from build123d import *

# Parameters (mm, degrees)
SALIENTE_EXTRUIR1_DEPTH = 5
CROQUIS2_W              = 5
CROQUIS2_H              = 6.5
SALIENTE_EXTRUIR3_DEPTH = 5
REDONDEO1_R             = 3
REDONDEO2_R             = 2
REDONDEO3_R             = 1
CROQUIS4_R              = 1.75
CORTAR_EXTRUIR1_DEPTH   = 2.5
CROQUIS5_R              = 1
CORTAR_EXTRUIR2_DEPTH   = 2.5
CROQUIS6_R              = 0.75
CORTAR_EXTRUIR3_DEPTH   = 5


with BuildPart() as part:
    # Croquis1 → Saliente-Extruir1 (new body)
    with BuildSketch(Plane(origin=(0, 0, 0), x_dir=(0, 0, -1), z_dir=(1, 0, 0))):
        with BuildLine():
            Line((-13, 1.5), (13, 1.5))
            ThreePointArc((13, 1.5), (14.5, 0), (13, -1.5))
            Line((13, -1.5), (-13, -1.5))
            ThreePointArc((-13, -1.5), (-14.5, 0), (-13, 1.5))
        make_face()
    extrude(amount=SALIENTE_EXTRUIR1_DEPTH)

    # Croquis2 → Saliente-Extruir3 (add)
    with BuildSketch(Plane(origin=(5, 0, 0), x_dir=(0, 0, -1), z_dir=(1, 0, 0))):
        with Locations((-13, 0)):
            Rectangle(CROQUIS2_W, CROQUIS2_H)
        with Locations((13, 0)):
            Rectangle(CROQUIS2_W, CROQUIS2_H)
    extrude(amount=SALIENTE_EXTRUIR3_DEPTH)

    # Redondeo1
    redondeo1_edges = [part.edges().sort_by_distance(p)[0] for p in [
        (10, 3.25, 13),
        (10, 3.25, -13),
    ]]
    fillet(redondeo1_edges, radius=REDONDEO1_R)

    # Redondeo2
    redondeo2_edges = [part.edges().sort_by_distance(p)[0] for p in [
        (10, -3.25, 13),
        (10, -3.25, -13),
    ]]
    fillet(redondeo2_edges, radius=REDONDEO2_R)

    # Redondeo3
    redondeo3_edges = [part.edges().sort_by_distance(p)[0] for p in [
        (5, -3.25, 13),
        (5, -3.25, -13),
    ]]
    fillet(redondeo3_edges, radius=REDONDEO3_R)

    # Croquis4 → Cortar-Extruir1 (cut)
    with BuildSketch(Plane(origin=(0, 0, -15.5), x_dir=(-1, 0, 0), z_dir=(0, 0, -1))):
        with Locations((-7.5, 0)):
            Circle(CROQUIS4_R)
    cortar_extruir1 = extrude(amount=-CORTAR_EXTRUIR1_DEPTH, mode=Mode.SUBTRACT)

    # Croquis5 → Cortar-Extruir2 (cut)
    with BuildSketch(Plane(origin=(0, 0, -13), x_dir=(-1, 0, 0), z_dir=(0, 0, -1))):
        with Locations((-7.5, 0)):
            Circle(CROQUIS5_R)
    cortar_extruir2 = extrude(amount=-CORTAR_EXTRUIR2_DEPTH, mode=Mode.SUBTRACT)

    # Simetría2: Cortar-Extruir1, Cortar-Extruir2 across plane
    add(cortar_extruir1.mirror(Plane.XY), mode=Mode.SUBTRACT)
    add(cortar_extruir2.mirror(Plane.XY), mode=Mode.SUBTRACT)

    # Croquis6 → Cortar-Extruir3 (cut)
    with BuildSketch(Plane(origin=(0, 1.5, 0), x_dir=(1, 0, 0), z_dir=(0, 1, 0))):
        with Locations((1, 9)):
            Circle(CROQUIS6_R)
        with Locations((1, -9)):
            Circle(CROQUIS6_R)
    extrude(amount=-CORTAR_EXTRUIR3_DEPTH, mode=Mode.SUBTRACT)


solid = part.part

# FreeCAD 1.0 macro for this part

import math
import FreeCAD as App
import Part
import Sketcher

V = App.Vector


def edges_at(feature, points):
    """Names of the edges that pass closest to the given points."""
    edges = feature.Shape.Edges
    near = lambda p: min(range(len(edges)), key=lambda i: edges[i].distToShape(Part.Vertex(*p))[0])
    return sorted({f"Edge{near(p) + 1}" for p in points})


def add_polygon(sketch, points):
    """Adds a closed chain of lines whose ends are joined by coincident constraints."""
    first, n = sketch.GeometryCount, len(points)
    for a, b in zip(points, points[1:] + points[:1]):
        sketch.addGeometry(Part.LineSegment(App.Vector(*a, 0), App.Vector(*b, 0)), False)
    for i in range(n):
        sketch.addConstraint(Sketcher.Constraint("Coincident", first + i, 2, first + (i + 1) % n, 1))

doc = App.newDocument("Part")
body = doc.addObject("PartDesign::Body", "Body")

# Sketch on YZ plane
sketch1 = body.newObject("Sketcher::SketchObject", "Sketch")
sketch1.AttachmentSupport = (doc.getObject("YZ_Plane"), [""])
sketch1.MapMode = "FlatFace"
sketch1.addGeometry([
    Part.LineSegment(V(1.5, -13, 0), V(1.5, 13, 0)),
    Part.ArcOfCircle(Part.Circle(V(0, 13, 0), V(0, 0, 1), 1.5), math.radians(0), math.radians(180)),
    Part.LineSegment(V(-1.5, 13, 0), V(-1.5, -13, 0)),
    Part.ArcOfCircle(Part.Circle(V(0, -13, 0), V(0, 0, 1), 1.5), math.radians(180), math.radians(360)),
], False)
sketch1.addConstraint([
    Sketcher.Constraint("Tangent", 0, 2, 1, 1),
    Sketcher.Constraint("Tangent", 1, 2, 2, 1),
    Sketcher.Constraint("Tangent", 2, 2, 3, 1),
    Sketcher.Constraint("Tangent", 3, 2, 0, 1),
    Sketcher.Constraint("Vertical", 0),
    Sketcher.Constraint("Vertical", 2),
    Sketcher.Constraint("Symmetric", 1, 3, 3, 3, -1, 1),
    Sketcher.Constraint("Radius", 1, 1.5),
    Sketcher.Constraint("DistanceY", 0, 1, 0, 2, 26.0),
])
pad1 = body.newObject("PartDesign::Pad", "Pad")
pad1.Profile = sketch1
pad1.Length = 5

# Sketch on YZ plane
sketch2 = body.newObject("Sketcher::SketchObject", "Sketch001")
sketch2.AttachmentSupport = (doc.getObject("YZ_Plane"), [""])
sketch2.MapMode = "FlatFace"
sketch2.AttachmentOffset = App.Placement(V(0, 0, 5), App.Rotation())
add_polygon(sketch2, [(3, 16), (-3, 16), (-3, 10), (3, 10)])  # lines 0-3
add_polygon(sketch2, [(3, -10), (-3, -10), (-3, -16), (3, -16)])  # lines 4-7
sketch2.addConstraint([
    Sketcher.Constraint("Horizontal", 0),
    Sketcher.Constraint("Vertical", 1),
    Sketcher.Constraint("Horizontal", 2),
    Sketcher.Constraint("Vertical", 3),
    Sketcher.Constraint("Horizontal", 4),
    Sketcher.Constraint("Vertical", 5),
    Sketcher.Constraint("Horizontal", 6),
    Sketcher.Constraint("Vertical", 7),
    Sketcher.Constraint("Symmetric", 2, 2, 4, 2, -1, 1),
    Sketcher.Constraint("Symmetric", 0, 2, 6, 2, -1, 1),
    Sketcher.Constraint("Vertical", 1, 2, 4, 2),
    Sketcher.Constraint("DistanceY", 1, 2, 1, 1, 5.0),
    Sketcher.Constraint("DistanceX", 0, 2, 0, 1, 6.5),
    Sketcher.Constraint("DistanceY", 4, 2, 1, 2, 21.0),
])
pad2 = body.newObject("PartDesign::Pad", "Pad001")
pad2.Profile = sketch2
pad2.Length = 5
doc.recompute()

fillet = body.newObject("PartDesign::Fillet", "Fillet")
fillet.Base = (pad2, edges_at(pad2, [(10, 3.25, 13), (10, 3.25, -13)]))
fillet.Radius = 3
doc.recompute()

fillet2 = body.newObject("PartDesign::Fillet", "Fillet001")
fillet2.Base = (fillet, edges_at(fillet, [(10, -3.25, 13), (10, -3.25, -13)]))
fillet2.Radius = 2
doc.recompute()

fillet3 = body.newObject("PartDesign::Fillet", "Fillet002")
fillet3.Base = (fillet2, edges_at(fillet2, [(5, -3.25, 13), (5, -3.25, -13)]))
fillet3.Radius = 1

# Sketch on XY plane
sketch3 = body.newObject("Sketcher::SketchObject", "Sketch002")
sketch3.AttachmentSupport = (doc.getObject("XY_Plane"), [""])
sketch3.MapMode = "FlatFace"
sketch3.AttachmentOffset = App.Placement(V(0, 0, -15.5), App.Rotation())
sketch3.addGeometry(Part.Circle(V(7.5, 0, 0), V(0, 0, 1), 1.8), False)
sketch3.addConstraint([
    Sketcher.Constraint("PointOnObject", 0, 3, -1),
    Sketcher.Constraint("Diameter", 0, 3.5),
    Sketcher.Constraint("DistanceX", -1, 1, 0, 3, 7.5),
])
pocket1 = body.newObject("PartDesign::Pocket", "Pocket")
pocket1.Profile = sketch3
pocket1.Length = 2.5
pocket1.Reversed = True

# Sketch on XY plane
sketch4 = body.newObject("Sketcher::SketchObject", "Sketch003")
sketch4.AttachmentSupport = (doc.getObject("XY_Plane"), [""])
sketch4.MapMode = "FlatFace"
sketch4.AttachmentOffset = App.Placement(V(0, 0, -13), App.Rotation())
sketch4.addGeometry(Part.Circle(V(7.5, 0, 0), V(0, 0, 1), 1), False)
sketch4.addConstraint([
    Sketcher.Constraint("PointOnObject", 0, 3, -1),
    Sketcher.Constraint("Diameter", 0, 2.0),
    Sketcher.Constraint("DistanceX", -1, 1, 0, 3, 7.5),
])
pocket2 = body.newObject("PartDesign::Pocket", "Pocket001")
pocket2.Profile = sketch4
pocket2.Length = 2.5
pocket2.Reversed = True
doc.recompute()

mirrored = body.newObject("PartDesign::Mirrored", "Mirrored")
mirrored.Originals = [pocket1, pocket2]
mirrored.MirrorPlane = (doc.getObject("XY_Plane"), [""])
body.Tip = mirrored

# Sketch on XZ plane
sketch5 = body.newObject("Sketcher::SketchObject", "Sketch004")
sketch5.AttachmentSupport = (doc.getObject("XZ_Plane"), [""])
sketch5.MapMode = "FlatFace"
sketch5.AttachmentOffset = App.Placement(V(0, 0, -1.5), App.Rotation())
sketch5.addGeometry([
    Part.Circle(V(1, -9, 0), V(0, 0, 1), 0.8),
    Part.Circle(V(1, 9, 0), V(0, 0, 1), 0.8),
], False)
sketch5.addConstraint([
    Sketcher.Constraint("Equal", 0, 1),
    Sketcher.Constraint("Symmetric", 0, 3, 1, 3, -1),
    Sketcher.Constraint("Diameter", 0, 1.5),
    Sketcher.Constraint("DistanceX", -1, 1, 0, 3, 1.0),
    Sketcher.Constraint("DistanceY", 0, 3, -1, 1, 9.0),
])
pocket3 = body.newObject("PartDesign::Pocket", "Pocket002")
pocket3.Profile = sketch5
pocket3.Length = 5
pocket3.Reversed = True

doc.recompute()
